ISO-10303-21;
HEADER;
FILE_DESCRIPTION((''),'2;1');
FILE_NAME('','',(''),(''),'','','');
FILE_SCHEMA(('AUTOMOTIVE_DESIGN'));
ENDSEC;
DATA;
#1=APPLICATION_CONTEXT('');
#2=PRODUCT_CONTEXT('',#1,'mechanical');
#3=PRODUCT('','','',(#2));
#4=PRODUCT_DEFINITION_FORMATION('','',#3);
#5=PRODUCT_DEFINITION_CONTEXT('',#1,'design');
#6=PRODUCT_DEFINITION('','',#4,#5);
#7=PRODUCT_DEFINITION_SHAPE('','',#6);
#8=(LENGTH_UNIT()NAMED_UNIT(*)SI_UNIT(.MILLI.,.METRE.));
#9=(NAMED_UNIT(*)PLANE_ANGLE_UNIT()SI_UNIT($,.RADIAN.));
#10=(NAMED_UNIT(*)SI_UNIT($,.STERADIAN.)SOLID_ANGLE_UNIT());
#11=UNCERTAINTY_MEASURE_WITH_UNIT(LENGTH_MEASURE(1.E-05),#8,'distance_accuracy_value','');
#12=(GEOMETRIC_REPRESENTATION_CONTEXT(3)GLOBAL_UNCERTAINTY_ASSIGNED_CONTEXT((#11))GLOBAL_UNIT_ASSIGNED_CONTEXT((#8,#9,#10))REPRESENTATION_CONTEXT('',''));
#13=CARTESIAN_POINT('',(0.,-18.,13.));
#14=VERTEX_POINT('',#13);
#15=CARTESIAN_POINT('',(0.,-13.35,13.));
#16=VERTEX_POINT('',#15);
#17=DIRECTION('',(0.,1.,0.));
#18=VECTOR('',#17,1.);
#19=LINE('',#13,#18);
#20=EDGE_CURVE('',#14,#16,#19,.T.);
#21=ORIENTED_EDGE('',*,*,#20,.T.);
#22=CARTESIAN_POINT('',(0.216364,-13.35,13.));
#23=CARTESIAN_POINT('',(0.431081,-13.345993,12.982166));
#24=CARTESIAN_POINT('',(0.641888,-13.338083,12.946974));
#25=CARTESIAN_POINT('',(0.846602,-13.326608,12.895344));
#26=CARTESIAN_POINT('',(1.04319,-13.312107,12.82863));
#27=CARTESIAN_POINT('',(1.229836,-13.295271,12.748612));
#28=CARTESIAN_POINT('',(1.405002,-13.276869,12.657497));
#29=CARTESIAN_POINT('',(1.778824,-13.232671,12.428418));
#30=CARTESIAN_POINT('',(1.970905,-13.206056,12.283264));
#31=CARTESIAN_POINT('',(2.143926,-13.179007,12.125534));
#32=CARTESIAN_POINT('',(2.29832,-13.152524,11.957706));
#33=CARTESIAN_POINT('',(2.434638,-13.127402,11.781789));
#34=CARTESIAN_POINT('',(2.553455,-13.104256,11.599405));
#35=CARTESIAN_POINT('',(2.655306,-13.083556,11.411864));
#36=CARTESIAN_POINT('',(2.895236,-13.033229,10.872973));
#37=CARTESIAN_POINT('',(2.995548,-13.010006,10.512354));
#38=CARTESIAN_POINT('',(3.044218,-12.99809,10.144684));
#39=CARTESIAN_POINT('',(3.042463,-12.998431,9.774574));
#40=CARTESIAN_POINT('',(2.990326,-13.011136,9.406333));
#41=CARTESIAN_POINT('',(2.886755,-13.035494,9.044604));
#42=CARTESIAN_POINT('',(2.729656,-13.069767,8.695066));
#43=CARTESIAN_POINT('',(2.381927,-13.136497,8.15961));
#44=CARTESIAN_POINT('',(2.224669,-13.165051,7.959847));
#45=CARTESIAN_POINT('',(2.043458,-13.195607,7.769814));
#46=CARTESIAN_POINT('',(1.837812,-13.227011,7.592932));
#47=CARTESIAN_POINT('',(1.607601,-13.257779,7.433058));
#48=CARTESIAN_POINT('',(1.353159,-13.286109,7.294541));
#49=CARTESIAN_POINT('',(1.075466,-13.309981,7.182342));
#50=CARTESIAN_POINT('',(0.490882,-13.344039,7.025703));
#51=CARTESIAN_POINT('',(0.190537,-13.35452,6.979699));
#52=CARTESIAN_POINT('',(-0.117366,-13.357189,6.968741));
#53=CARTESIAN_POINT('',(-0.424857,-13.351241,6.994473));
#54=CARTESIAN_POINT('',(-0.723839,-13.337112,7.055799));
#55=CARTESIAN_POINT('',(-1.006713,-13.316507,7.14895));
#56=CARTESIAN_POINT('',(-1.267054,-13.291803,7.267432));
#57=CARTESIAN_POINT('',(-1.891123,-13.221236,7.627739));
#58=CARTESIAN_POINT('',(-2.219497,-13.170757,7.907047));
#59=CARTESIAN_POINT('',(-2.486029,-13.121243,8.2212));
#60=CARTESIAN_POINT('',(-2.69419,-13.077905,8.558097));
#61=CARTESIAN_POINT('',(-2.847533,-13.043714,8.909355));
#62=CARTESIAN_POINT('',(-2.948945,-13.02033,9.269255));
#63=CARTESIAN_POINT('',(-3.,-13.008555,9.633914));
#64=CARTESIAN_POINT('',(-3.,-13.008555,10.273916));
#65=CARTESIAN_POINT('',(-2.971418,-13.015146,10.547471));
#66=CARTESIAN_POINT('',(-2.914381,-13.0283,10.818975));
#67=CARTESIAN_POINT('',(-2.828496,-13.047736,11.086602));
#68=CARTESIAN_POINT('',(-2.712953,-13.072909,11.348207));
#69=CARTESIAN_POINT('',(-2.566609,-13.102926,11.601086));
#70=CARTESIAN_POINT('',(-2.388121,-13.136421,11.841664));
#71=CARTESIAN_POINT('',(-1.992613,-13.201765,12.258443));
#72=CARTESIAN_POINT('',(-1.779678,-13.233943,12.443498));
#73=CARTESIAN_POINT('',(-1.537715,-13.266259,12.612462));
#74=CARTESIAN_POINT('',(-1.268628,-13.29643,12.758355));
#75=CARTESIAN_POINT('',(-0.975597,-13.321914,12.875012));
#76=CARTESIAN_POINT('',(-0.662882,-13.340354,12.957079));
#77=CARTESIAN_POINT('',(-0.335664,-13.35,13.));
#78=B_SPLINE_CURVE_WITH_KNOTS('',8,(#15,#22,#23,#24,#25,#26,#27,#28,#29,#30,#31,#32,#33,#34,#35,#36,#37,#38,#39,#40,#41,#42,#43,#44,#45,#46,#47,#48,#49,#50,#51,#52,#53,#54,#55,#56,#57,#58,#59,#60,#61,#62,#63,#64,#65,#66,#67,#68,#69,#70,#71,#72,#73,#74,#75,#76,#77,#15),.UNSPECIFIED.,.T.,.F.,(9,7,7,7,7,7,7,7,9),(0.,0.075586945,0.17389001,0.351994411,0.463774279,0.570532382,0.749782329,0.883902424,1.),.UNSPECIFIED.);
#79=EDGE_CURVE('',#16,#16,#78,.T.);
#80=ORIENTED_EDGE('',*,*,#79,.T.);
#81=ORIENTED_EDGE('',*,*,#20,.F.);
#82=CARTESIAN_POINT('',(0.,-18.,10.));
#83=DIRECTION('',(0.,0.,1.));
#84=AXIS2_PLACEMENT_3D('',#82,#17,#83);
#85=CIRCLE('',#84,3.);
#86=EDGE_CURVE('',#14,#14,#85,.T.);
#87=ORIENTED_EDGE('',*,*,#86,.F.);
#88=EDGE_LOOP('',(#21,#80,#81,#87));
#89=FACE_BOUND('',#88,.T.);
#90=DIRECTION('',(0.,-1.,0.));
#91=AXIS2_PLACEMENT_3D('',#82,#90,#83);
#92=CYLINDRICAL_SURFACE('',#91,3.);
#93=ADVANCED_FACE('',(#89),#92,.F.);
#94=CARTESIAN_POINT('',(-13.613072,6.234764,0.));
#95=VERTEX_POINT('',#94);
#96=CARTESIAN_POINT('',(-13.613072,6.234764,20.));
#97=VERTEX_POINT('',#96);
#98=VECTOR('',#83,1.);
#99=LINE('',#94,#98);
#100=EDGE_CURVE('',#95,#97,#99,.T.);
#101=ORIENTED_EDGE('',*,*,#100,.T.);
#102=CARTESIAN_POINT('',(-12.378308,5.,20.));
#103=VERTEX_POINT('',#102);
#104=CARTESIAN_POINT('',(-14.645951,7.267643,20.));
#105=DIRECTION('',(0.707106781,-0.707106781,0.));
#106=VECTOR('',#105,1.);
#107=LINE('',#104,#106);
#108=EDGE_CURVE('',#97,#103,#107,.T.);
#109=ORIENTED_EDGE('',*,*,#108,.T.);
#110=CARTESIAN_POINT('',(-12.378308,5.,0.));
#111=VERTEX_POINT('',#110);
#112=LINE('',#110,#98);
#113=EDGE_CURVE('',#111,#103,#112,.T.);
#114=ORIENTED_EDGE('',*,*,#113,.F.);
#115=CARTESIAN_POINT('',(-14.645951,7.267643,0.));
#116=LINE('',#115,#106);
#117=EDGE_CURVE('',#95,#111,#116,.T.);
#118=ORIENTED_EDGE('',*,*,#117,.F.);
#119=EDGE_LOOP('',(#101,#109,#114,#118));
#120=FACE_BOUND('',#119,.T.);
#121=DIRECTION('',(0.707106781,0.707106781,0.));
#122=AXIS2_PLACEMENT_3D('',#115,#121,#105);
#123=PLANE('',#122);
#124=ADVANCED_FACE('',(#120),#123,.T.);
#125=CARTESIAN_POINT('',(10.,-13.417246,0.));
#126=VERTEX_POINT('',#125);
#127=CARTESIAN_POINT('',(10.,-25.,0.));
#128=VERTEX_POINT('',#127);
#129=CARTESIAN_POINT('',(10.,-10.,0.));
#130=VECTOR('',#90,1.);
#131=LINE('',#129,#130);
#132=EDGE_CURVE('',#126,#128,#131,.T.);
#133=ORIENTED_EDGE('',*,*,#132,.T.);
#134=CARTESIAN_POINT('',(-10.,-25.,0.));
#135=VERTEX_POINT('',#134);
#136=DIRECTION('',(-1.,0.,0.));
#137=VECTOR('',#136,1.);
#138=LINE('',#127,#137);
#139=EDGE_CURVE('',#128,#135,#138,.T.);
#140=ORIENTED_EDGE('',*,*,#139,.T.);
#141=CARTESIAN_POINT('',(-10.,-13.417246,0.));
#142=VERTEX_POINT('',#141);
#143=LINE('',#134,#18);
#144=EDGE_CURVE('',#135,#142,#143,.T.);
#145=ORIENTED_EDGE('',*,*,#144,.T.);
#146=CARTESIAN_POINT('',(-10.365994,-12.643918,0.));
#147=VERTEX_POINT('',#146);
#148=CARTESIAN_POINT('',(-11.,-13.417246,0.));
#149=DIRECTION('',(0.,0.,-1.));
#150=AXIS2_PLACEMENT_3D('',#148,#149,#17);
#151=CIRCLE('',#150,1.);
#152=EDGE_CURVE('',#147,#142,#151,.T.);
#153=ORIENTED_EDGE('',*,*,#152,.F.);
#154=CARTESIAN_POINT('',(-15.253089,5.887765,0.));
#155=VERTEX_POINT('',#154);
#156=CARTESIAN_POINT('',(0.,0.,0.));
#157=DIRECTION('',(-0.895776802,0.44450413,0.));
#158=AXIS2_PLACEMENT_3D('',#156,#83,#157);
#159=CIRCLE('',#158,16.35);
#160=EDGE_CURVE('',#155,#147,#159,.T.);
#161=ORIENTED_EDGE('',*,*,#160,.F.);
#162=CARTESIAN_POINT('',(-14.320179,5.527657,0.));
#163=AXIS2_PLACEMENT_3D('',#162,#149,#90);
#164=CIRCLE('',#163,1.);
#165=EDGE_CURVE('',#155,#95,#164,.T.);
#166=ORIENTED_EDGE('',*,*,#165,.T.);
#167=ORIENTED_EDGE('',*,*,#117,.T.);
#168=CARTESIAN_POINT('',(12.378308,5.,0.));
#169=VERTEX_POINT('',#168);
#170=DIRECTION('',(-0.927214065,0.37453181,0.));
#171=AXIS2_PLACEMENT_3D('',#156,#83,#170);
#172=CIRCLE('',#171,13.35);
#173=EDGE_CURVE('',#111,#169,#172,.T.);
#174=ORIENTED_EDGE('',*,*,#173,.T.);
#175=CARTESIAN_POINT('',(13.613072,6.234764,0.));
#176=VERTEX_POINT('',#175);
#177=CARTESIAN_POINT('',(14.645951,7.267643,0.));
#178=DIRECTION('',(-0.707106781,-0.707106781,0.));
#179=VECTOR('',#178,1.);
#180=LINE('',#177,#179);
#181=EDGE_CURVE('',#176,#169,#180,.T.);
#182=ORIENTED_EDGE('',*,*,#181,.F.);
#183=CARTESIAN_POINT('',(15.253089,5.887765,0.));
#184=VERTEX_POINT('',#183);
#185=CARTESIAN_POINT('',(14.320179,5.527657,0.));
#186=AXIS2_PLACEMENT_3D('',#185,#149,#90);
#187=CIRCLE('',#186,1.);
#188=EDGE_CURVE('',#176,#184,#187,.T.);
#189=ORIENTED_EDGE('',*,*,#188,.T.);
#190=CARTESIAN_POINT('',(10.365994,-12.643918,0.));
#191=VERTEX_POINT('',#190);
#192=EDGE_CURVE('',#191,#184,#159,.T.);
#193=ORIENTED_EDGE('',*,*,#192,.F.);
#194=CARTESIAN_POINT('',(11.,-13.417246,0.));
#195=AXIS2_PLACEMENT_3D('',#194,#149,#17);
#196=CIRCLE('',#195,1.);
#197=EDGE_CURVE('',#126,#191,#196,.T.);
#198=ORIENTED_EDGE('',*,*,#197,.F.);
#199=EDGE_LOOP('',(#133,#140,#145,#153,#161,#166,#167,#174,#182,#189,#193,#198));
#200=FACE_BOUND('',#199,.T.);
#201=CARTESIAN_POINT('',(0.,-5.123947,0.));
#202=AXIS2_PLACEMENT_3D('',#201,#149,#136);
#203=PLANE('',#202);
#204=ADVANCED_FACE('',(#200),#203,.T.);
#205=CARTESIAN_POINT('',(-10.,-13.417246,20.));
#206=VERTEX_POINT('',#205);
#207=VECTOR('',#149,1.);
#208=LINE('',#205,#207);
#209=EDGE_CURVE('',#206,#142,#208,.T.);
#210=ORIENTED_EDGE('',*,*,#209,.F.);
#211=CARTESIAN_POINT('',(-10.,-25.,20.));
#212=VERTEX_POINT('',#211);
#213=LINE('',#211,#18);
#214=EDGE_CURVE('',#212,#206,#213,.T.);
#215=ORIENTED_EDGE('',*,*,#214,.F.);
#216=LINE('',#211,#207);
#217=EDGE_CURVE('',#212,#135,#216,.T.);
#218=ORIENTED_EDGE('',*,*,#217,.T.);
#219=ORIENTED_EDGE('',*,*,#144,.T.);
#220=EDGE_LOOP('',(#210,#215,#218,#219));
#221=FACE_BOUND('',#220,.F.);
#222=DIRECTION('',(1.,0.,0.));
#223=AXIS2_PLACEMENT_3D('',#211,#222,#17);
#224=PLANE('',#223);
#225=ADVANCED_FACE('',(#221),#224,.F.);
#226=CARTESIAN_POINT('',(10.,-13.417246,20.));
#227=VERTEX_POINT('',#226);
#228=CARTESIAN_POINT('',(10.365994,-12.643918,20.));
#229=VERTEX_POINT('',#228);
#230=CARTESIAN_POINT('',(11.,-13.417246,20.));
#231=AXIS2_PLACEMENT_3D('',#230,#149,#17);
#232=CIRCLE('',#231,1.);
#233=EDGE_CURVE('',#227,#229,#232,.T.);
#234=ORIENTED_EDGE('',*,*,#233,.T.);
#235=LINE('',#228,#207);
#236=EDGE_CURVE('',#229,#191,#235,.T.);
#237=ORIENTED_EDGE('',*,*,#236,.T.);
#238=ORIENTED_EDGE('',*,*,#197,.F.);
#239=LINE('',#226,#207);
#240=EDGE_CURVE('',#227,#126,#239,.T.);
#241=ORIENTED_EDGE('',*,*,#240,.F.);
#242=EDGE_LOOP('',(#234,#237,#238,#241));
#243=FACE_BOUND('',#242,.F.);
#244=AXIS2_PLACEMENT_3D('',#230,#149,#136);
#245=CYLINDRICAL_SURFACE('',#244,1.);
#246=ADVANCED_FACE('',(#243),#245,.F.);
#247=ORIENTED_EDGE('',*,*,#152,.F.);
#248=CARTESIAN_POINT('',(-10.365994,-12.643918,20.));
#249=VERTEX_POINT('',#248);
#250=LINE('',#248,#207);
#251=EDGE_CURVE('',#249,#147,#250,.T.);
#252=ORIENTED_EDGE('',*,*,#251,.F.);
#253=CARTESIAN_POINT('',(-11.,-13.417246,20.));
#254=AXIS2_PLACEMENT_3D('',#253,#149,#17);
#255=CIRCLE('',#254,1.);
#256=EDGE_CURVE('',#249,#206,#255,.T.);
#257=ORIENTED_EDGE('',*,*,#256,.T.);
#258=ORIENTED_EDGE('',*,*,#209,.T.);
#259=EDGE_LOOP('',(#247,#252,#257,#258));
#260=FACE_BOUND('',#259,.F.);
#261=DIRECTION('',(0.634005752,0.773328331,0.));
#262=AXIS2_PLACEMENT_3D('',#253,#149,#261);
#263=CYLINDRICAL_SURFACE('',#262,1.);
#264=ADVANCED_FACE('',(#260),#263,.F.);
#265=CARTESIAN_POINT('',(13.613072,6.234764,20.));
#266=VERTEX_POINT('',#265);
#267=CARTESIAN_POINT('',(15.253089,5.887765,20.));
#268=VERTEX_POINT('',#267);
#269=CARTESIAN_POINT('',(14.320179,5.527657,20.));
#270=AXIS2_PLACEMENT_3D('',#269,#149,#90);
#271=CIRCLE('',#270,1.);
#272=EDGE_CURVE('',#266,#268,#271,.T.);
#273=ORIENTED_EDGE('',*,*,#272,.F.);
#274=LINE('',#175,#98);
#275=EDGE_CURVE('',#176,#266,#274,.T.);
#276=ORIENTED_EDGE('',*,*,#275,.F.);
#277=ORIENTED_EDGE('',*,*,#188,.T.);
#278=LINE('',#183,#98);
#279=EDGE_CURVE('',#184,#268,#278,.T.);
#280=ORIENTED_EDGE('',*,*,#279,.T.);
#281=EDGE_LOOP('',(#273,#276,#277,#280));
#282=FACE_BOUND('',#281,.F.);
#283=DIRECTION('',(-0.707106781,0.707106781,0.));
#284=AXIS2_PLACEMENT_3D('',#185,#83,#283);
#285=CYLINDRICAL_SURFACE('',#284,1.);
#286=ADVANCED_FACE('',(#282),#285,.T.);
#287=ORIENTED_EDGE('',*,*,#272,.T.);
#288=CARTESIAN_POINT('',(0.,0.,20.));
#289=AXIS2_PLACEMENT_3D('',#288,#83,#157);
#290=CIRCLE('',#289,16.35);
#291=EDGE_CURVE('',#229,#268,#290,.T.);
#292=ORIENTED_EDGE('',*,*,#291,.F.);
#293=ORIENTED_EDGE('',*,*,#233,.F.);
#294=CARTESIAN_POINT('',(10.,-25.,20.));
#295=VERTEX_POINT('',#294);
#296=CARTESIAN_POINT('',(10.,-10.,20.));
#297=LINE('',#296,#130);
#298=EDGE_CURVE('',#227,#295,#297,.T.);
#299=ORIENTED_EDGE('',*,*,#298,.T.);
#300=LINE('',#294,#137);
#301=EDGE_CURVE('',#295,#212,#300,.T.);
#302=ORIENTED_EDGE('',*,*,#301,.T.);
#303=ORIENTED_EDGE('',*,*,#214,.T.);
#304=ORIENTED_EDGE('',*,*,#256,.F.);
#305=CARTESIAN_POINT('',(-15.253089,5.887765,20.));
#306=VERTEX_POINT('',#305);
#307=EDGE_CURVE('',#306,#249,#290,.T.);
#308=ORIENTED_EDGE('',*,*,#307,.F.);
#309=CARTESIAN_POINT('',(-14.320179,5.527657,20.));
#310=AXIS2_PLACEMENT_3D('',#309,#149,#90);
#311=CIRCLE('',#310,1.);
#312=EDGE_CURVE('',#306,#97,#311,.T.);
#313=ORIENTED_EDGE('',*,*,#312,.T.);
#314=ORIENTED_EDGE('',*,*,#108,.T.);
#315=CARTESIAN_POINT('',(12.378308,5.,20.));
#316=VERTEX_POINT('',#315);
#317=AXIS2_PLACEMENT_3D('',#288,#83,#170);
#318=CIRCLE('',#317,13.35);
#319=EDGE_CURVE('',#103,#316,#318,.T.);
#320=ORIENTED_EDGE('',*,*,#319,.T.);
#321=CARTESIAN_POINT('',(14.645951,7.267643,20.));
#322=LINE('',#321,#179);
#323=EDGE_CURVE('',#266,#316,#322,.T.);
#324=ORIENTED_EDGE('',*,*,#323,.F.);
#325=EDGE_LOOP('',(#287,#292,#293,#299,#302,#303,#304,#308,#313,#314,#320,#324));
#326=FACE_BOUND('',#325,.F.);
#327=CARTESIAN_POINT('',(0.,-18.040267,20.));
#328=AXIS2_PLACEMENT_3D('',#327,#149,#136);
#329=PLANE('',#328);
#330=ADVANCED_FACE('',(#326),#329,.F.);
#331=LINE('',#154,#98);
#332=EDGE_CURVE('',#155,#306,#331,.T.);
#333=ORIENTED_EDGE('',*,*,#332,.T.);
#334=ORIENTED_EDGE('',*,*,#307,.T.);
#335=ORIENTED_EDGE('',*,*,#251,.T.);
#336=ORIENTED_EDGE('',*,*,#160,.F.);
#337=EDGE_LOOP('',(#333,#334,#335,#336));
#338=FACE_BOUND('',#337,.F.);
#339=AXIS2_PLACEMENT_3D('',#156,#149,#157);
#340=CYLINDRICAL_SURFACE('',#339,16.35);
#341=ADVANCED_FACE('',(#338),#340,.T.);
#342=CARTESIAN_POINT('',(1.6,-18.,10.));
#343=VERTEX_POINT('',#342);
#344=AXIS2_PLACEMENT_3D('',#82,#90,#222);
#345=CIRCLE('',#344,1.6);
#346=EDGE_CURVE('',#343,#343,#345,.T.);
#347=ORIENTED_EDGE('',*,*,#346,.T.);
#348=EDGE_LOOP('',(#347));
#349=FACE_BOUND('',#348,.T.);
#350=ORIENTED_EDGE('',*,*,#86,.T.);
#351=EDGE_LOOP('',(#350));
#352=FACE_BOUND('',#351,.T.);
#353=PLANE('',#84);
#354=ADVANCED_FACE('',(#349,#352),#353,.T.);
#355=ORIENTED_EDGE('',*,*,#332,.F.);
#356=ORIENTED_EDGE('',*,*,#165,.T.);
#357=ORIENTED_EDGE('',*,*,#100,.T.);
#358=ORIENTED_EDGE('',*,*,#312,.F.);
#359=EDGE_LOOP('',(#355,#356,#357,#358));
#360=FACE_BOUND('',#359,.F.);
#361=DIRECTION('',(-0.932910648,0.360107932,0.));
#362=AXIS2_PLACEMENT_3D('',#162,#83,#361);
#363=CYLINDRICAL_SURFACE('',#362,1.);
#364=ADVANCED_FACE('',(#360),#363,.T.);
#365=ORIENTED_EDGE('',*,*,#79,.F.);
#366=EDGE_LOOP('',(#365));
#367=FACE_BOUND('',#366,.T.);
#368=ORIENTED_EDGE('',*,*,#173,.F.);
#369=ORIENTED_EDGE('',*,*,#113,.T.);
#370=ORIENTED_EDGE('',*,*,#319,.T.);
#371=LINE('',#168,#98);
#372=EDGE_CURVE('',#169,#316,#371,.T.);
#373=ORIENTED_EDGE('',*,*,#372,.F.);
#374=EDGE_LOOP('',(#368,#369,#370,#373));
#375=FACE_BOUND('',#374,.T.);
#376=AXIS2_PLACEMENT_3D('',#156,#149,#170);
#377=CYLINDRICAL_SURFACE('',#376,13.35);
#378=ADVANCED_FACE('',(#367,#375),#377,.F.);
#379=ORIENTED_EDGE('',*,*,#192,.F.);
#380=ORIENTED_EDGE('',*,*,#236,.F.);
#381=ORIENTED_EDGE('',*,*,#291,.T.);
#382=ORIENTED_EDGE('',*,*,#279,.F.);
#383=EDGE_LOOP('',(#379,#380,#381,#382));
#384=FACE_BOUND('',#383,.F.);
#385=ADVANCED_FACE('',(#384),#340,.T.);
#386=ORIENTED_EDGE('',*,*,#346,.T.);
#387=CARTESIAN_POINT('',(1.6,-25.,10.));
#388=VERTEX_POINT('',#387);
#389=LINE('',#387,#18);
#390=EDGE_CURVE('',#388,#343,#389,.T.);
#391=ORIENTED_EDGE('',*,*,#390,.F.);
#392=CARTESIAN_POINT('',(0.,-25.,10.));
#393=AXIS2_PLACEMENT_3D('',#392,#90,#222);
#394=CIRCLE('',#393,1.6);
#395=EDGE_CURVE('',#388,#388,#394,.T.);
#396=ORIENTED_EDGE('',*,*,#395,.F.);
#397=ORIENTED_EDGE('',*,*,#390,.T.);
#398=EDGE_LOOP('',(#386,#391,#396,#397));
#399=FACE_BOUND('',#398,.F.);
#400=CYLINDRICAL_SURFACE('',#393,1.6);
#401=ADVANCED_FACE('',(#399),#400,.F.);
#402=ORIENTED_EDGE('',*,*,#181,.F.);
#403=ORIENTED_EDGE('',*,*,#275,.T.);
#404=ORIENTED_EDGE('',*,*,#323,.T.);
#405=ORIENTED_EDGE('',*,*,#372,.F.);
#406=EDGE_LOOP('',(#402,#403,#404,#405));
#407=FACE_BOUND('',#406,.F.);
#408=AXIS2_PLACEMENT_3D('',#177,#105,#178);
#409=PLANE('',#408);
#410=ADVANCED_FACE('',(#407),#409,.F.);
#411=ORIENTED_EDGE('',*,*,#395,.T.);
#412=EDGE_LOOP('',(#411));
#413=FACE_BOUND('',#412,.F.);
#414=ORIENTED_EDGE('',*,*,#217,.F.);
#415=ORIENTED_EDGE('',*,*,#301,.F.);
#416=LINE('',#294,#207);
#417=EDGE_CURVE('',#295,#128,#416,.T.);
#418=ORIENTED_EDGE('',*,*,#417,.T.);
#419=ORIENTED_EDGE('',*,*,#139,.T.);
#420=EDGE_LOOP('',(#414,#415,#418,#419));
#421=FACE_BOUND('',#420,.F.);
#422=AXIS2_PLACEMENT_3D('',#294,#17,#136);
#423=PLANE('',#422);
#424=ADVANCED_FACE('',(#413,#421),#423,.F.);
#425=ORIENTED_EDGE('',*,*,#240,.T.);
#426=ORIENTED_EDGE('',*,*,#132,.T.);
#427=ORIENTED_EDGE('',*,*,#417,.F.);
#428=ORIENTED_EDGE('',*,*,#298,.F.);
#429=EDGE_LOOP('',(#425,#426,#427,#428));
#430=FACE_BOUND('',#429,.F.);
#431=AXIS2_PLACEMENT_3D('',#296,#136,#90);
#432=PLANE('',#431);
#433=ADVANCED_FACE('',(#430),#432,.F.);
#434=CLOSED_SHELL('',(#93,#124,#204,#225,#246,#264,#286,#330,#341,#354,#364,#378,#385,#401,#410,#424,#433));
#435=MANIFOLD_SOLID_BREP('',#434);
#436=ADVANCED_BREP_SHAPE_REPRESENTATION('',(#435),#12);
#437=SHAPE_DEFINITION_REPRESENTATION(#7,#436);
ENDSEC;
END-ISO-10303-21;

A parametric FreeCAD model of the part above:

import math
import FreeCAD as App
import Part
import Sketcher
from FreeCAD import Vector


def edges_at(feature, points):
    """Names of the edges that pass closest to the given points."""
    edges = feature.Shape.Edges
    near = lambda p: min(range(len(edges)), key=lambda i: edges[i].distToShape(Part.Vertex(*p))[0])
    return sorted({f"Edge{near(p) + 1}" for p in points})

doc = App.newDocument("Part")
body = doc.addObject("PartDesign::Body", "Body")

# Sketch on XZ plane
sketch1 = body.newObject("Sketcher::SketchObject", "Sketch")
sketch1.AttachmentSupport = (doc.getObject("XZ_Plane"), [""])
sketch1.MapMode = "FlatFace"
sketch1.AttachmentOffset = App.Placement(Vector(0, 0, 18), App.Rotation())
sketch1.addGeometry(Part.Circle(Vector(0, 10, 0), Vector(0, 0, 1), 3), False)
sketch1.addConstraint([
    Sketcher.Constraint("PointOnObject", 0, 3, -2),
    Sketcher.Constraint("Diameter", 0, 6.0),
    Sketcher.Constraint("DistanceY", -1, 1, 0, 3, 10.0),
])
pad1 = body.newObject("PartDesign::Pad", "Pad")
pad1.Profile = sketch1
pad1.Length = 10
pad1.Reversed = True
body2 = doc.addObject("PartDesign::Body", "Body001")

# Sketch on XY plane
sketch2 = body2.newObject("Sketcher::SketchObject", "Sketch001")
sketch2.AttachmentSupport = (doc.getObject("XY_Plane001"), [""])
sketch2.MapMode = "FlatFace"
sketch2.addGeometry([
    Part.ArcOfCircle(Part.Circle(Vector(0, 0, 0), Vector(0, 0, 1), 13.35), math.radians(158.004621), math.radians(381.995379)),
    Part.LineSegment(Vector(-12.378308, 5, 0), Vector(-14.645951, 7.267643, 0)),
    Part.ArcOfCircle(Part.Circle(Vector(0, 0, 0), Vector(0, 0, 1), 16.35), math.radians(153.608382), math.radians(386.391618)),
    Part.LineSegment(Vector(14.645951, 7.267643, 0), Vector(12.378308, 5, 0)),
], False)
sketch2.addConstraint([
    Sketcher.Constraint("Coincident", 0, 1, 1, 1),
    Sketcher.Constraint("Coincident", 1, 2, 2, 1),
    Sketcher.Constraint("Coincident", 2, 2, 3, 1),
    Sketcher.Constraint("Coincident", 3, 2, 0, 2),
    Sketcher.Constraint("Coincident", 0, 3, -1, 1),
    Sketcher.Constraint("Coincident", 2, 3, -1, 1),
    Sketcher.Constraint("Perpendicular", 1, 3),
    Sketcher.Constraint("Horizontal", 1, 2, 2, 2),
    Sketcher.Constraint("Horizontal", 0, 1, 3, 2),
    Sketcher.Constraint("Radius", 0, 13.35),
    Sketcher.Constraint("Radius", 2, 16.35),
    Sketcher.Constraint("DistanceY", -1, 1, 0, 1, 5.0),
])
pad2 = body2.newObject("PartDesign::Pad", "Pad001")
pad2.Profile = sketch2
pad2.Length = 20

# Sketch on XY plane
sketch3 = body2.newObject("Sketcher::SketchObject", "Sketch002")
sketch3.AttachmentSupport = (doc.getObject("XY_Plane001"), [""])
sketch3.MapMode = "FlatFace"
sketch3.AttachmentOffset = App.Placement(Vector(0, 0, 20), App.Rotation())
sketch3.addGeometry([
    Part.ArcOfCircle(Part.Circle(Vector(0, -0.000001, 0), Vector(0, 0, 1), 14.142135), math.radians(-135.000004), math.radians(-44.999996)),
    Part.LineSegment(Vector(-10, -10, 0), Vector(-10, -25, 0)),
    Part.LineSegment(Vector(-10, -25, 0), Vector(10, -25, 0)),
    Part.LineSegment(Vector(10, -25, 0), Vector(10, -10, 0)),
], False)
sketch3.addConstraint([
    Sketcher.Constraint("Coincident", 0, 1, 1, 1),
    Sketcher.Constraint("Coincident", 1, 2, 2, 1),
    Sketcher.Constraint("Coincident", 2, 2, 3, 1),
    Sketcher.Constraint("Coincident", 3, 2, 0, 2),
    Sketcher.Constraint("Vertical", 1),
    Sketcher.Constraint("Horizontal", 2),
    Sketcher.Constraint("Vertical", 3),
    Sketcher.Constraint("Coincident", 0, 3, -1, 1),
    Sketcher.Constraint("Horizontal", 0, 1, 3, 2),
    Sketcher.Constraint("DistanceX", 2, 1, 2, 2, 20.0),
    Sketcher.Constraint("DistanceY", 1, 2, 1, 1, 15.0),
    Sketcher.Constraint("DistanceY", 0, 1, -1, 1, 10.0),
])
pad3 = body2.newObject("PartDesign::Pad", "Pad002")
pad3.Profile = sketch3
pad3.Length = 20
pad3.Reversed = True

# Sketch on XZ plane
sketch4 = body2.newObject("Sketcher::SketchObject", "Sketch003")
sketch4.AttachmentSupport = (doc.getObject("XZ_Plane001"), [""])
sketch4.MapMode = "FlatFace"
sketch4.AttachmentOffset = App.Placement(Vector(0, 0, 25), App.Rotation())
sketch4.addGeometry(Part.Circle(Vector(0, 10, 0), Vector(0, 0, 1), 1.6), False)
sketch4.addConstraint([
    Sketcher.Constraint("PointOnObject", 0, 3, -2),
    Sketcher.Constraint("Diameter", 0, 3.2),
    Sketcher.Constraint("DistanceY", -1, 1, 0, 3, 10.0),
])
pocket1 = body2.newObject("PartDesign::Pocket", "Pocket")
pocket1.Profile = sketch4
pocket1.Type = "ThroughAll"
doc.recompute()

boolean = body2.newObject("PartDesign::Boolean", "Boolean")
boolean.Type = "Cut"
boolean.addObjects([body])
doc.recompute()

fillet = body2.newObject("PartDesign::Fillet", "Fillet")
fillet.Base = (boolean, edges_at(boolean, [(-14.646, 7.268, 10), (14.646, 7.268, 10)]))
fillet.Radius = 1
doc.recompute()

fillet2 = body2.newObject("PartDesign::Fillet", "Fillet001")
fillet2.Base = (fillet, edges_at(fillet, [(-10, -12.935, 10), (10, -12.935, 10)]))
fillet2.Radius = 1

doc.recompute()
